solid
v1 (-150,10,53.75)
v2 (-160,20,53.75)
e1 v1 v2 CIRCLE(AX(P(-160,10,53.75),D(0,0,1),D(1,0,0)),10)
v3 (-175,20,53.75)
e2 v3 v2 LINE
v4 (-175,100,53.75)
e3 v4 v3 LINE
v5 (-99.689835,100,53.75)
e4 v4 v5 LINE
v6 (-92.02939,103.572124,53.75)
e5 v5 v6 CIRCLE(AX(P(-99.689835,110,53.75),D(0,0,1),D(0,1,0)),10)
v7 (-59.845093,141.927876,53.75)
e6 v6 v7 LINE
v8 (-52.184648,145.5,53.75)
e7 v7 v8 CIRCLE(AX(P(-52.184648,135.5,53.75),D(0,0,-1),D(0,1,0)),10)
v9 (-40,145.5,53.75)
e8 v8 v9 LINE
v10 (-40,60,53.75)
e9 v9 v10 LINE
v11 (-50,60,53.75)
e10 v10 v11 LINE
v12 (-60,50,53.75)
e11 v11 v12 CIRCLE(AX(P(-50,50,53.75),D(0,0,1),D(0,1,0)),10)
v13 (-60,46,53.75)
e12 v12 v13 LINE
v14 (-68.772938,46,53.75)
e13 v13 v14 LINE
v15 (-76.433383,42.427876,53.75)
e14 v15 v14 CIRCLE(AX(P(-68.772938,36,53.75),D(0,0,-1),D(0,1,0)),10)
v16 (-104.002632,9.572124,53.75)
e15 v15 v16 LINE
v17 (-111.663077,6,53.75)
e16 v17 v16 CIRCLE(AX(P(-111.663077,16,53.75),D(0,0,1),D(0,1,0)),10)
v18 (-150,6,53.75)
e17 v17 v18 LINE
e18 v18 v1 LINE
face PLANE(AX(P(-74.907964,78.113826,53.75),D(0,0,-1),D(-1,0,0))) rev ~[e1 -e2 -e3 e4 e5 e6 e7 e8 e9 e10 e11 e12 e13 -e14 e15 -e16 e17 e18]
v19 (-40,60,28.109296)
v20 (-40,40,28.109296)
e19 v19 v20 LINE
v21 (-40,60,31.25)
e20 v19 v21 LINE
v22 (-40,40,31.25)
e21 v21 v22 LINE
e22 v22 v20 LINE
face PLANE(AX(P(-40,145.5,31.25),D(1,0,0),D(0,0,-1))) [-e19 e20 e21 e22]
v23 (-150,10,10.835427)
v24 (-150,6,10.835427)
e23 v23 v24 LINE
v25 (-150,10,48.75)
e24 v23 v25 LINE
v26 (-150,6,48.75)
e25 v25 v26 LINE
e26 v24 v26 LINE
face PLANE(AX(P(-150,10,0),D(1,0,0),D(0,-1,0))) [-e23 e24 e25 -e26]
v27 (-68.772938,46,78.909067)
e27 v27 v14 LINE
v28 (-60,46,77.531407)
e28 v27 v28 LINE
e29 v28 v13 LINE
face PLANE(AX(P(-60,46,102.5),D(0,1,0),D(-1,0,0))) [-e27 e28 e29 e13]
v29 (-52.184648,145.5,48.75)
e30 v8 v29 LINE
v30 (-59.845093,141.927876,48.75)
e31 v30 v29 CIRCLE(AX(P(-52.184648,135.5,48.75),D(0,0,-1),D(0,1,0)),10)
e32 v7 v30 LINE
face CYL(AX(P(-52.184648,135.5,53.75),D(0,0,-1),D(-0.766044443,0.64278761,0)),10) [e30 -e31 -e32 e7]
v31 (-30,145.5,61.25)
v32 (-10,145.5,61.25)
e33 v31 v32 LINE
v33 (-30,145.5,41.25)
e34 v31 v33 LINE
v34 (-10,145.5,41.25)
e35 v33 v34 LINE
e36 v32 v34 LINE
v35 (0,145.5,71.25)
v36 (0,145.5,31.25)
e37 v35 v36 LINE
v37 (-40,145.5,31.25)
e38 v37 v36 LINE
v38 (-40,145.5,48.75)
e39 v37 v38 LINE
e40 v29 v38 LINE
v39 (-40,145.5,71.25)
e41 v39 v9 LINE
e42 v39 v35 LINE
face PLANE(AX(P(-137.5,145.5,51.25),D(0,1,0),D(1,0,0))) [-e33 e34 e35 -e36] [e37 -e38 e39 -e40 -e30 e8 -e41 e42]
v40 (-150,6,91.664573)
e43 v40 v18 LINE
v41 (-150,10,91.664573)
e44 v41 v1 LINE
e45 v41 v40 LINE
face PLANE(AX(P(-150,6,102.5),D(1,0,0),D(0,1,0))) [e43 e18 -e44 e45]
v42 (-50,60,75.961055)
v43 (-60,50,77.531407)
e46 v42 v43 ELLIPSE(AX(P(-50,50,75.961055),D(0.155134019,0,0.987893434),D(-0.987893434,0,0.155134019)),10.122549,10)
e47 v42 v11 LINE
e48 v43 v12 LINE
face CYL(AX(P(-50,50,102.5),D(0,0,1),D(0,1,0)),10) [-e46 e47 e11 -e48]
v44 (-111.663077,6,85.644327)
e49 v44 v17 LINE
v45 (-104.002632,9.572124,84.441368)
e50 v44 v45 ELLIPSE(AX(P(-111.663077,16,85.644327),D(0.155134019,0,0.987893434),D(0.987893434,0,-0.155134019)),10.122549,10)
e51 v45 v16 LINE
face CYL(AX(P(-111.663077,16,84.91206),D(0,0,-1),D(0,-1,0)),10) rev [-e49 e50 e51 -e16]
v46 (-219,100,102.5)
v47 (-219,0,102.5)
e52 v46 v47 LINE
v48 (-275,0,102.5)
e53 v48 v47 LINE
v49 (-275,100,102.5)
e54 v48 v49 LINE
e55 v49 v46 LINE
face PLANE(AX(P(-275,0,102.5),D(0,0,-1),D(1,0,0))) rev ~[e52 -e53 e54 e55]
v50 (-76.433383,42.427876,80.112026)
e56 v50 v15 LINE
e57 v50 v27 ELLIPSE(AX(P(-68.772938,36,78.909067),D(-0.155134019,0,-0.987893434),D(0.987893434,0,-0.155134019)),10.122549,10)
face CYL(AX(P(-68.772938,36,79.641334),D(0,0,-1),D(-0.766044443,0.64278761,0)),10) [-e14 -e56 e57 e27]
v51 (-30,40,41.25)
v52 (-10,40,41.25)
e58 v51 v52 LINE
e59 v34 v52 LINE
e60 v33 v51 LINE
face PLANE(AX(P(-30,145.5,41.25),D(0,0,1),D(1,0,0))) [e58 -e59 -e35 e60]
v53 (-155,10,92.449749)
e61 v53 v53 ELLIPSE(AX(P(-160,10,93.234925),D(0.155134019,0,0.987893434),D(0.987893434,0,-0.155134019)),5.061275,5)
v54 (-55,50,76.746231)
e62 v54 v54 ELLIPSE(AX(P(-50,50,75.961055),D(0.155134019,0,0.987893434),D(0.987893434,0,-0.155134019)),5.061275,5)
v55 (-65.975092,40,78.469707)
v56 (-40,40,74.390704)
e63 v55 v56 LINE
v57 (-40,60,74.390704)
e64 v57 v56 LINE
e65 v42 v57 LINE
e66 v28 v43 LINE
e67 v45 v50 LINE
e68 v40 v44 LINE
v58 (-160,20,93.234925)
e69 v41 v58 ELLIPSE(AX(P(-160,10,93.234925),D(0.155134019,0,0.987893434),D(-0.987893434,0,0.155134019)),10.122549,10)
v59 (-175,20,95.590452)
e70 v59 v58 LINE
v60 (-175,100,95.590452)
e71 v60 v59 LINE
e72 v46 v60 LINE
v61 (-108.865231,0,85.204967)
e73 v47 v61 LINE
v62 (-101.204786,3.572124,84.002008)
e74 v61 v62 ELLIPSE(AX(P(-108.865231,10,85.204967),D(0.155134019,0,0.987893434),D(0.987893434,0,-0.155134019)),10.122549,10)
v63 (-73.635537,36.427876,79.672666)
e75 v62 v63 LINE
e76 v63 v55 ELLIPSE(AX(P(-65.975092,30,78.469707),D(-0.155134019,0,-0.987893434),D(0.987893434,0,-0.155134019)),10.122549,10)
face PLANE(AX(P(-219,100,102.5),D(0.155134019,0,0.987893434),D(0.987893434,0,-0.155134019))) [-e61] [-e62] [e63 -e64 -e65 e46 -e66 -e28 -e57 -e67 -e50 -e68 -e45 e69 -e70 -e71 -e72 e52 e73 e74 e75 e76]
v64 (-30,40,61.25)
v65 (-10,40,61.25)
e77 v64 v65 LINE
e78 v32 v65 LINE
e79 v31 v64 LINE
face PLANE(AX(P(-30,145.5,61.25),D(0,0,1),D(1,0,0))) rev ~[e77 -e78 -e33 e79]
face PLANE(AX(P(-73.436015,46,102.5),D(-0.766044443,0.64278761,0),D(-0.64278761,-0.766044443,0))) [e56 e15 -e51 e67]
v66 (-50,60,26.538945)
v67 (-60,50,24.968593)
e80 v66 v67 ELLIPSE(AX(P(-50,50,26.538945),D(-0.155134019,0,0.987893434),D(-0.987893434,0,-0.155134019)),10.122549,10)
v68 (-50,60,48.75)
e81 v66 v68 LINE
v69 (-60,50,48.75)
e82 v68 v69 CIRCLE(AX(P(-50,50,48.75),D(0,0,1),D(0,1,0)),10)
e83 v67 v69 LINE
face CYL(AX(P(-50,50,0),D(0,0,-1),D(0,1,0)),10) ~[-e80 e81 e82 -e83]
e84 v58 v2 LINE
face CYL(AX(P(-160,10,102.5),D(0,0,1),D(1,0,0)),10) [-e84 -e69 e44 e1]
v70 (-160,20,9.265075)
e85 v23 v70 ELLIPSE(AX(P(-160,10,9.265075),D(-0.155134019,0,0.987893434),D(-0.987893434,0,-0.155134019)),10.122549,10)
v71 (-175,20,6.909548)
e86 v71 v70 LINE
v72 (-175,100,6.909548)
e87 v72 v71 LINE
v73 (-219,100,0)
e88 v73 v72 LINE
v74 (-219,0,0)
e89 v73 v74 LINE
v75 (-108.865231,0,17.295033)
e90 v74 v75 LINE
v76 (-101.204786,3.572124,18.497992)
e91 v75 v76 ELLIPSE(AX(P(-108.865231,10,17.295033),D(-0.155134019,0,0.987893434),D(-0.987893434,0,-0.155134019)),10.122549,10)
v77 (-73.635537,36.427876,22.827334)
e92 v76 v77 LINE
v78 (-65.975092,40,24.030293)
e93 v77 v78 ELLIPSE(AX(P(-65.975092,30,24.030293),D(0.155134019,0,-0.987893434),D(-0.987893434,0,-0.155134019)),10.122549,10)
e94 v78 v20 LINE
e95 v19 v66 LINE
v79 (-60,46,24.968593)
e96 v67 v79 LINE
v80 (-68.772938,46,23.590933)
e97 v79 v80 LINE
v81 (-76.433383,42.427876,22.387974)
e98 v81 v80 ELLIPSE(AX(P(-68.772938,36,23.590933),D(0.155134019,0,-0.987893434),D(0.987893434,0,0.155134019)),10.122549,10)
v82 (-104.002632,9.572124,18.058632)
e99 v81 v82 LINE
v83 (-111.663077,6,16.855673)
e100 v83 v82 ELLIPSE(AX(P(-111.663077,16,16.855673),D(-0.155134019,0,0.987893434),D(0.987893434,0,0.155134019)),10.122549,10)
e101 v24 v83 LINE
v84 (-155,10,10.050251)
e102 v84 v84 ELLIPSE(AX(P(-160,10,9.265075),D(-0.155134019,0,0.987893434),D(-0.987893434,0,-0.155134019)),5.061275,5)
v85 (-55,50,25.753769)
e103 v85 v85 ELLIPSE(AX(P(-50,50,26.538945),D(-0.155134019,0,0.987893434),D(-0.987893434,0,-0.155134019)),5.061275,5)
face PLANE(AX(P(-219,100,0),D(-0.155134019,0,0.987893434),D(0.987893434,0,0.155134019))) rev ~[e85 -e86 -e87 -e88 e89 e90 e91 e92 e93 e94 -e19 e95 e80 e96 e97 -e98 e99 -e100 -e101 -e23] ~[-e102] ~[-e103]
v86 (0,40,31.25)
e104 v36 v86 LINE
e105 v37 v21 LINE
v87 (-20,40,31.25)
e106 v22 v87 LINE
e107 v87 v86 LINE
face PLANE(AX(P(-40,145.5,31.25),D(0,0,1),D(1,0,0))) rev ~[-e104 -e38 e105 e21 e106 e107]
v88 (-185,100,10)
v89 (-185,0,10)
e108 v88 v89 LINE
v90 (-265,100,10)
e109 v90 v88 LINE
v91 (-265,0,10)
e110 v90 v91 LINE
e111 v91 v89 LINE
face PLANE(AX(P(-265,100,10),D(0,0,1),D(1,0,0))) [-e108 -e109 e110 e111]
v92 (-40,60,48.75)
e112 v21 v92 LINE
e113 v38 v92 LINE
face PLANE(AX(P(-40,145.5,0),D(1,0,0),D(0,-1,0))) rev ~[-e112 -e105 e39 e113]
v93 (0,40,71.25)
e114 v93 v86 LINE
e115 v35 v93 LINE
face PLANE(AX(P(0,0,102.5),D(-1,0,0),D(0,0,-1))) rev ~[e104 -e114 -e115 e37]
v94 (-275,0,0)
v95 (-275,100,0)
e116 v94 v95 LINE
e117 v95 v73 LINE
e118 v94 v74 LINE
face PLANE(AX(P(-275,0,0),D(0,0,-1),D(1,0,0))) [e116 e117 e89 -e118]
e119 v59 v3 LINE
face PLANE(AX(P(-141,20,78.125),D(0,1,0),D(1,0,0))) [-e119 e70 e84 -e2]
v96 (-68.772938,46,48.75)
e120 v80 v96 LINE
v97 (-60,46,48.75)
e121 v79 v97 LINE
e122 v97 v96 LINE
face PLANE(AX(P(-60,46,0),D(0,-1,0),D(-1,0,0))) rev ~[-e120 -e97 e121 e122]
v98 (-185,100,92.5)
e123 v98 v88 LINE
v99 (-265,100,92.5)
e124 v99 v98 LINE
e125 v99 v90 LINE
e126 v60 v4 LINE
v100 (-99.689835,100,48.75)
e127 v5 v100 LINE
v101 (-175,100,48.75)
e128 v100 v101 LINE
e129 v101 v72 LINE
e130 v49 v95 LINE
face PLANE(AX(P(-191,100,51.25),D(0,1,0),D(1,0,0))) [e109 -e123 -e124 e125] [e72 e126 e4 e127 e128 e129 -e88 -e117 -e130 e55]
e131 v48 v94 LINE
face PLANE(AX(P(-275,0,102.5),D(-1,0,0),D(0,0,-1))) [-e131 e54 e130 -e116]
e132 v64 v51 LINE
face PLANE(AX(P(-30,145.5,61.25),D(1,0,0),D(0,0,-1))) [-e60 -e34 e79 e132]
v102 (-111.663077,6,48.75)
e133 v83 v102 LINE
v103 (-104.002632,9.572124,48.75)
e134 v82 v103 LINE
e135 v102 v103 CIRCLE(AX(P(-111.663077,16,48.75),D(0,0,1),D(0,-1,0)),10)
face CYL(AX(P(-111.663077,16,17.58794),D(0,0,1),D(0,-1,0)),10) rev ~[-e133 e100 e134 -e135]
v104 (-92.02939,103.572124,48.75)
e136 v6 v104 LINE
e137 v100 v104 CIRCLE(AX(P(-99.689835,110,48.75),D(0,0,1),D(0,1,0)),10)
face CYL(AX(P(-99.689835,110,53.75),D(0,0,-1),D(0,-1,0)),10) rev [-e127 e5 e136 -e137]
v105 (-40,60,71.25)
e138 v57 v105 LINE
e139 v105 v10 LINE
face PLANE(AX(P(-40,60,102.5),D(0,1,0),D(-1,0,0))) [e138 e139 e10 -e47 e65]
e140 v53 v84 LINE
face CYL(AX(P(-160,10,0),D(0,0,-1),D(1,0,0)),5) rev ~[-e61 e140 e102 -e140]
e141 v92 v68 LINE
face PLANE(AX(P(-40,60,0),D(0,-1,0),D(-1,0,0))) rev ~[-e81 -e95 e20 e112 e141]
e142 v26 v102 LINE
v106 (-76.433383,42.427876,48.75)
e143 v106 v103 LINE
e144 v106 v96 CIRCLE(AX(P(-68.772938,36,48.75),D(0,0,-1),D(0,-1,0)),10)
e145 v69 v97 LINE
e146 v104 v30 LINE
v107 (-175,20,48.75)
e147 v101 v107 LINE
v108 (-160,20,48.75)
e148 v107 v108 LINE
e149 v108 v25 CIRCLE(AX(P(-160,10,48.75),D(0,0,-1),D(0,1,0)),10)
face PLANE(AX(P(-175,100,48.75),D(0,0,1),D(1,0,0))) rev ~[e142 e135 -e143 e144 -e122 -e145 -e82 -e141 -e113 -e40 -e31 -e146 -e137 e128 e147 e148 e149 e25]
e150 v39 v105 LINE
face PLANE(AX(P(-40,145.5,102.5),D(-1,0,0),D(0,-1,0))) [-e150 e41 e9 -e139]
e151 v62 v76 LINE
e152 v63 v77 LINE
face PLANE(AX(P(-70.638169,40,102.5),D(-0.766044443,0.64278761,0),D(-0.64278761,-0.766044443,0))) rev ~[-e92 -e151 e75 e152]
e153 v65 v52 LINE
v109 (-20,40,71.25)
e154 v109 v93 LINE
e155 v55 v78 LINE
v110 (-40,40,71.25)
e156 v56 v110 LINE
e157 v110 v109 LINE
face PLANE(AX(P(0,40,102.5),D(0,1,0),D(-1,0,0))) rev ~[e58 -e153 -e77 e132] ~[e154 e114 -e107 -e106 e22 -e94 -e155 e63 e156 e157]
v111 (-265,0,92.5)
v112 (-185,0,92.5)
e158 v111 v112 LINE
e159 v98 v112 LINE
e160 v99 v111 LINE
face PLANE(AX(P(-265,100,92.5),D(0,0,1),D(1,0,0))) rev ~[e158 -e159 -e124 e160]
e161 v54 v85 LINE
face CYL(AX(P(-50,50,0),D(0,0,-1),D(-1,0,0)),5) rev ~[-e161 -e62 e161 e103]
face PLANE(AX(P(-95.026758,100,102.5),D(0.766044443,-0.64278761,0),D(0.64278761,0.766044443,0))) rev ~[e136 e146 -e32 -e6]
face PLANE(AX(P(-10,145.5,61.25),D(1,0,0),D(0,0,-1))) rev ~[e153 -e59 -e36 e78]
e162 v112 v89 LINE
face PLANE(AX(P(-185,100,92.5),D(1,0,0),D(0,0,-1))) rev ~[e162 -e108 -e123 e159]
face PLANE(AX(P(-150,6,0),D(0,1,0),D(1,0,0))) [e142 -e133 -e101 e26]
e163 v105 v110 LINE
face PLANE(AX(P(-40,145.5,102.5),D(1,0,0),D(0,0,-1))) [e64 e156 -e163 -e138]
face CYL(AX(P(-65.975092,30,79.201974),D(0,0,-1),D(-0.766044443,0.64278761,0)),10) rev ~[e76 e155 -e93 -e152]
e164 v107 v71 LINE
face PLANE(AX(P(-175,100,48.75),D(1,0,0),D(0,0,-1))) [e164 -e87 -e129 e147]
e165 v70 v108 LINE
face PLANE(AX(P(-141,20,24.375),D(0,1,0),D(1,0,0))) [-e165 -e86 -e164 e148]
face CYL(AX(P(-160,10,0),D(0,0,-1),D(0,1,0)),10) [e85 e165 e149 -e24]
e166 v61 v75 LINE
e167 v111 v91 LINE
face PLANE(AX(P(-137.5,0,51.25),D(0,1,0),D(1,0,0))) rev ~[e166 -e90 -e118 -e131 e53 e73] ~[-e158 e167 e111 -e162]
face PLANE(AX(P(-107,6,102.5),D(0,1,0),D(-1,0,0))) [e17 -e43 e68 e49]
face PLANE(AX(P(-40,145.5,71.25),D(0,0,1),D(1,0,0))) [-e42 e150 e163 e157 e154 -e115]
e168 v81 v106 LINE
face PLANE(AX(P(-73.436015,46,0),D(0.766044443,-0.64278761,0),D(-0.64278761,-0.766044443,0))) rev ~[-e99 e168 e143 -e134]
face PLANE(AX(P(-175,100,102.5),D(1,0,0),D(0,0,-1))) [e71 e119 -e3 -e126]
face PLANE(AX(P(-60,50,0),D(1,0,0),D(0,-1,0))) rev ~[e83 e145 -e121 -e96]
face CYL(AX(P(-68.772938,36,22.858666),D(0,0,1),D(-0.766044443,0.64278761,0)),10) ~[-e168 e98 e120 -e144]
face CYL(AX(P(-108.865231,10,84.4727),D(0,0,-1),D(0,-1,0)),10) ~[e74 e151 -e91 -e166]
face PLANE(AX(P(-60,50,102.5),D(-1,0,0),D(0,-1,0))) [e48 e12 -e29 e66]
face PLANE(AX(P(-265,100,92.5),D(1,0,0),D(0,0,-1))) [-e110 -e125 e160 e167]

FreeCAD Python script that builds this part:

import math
import FreeCAD as App
import Part
import Sketcher
Q = App.Units.Quantity


def edges_at(feature, points):
    """Names of the edges that pass closest to the given points."""
    edges = feature.Shape.Edges
    near = lambda p: min(range(len(edges)), key=lambda i: edges[i].distToShape(Part.Vertex(*p))[0])
    return sorted({f"Edge{near(p) + 1}" for p in points})

doc = App.newDocument("Part")
body = doc.addObject("PartDesign::Body", "Body")

# Sketch on XZ plane
sketch1 = doc.addObject("Sketcher::SketchObject", "Sketch")
body.addObject(sketch1)
sketch1.AttachmentSupport = (doc.XZ_Plane, [""])
sketch1.MapMode = "FlatFace"
sketch1.addGeometry([
    Part.LineSegment(App.Vector(-275, 0, 0), App.Vector(-275, 102, 0)),
    Part.LineSegment(App.Vector(-275, 102, 0), App.Vector(0, 102, 0)),
    Part.LineSegment(App.Vector(0, 102, 0), App.Vector(0, 0, 0)),
    Part.LineSegment(App.Vector(0, 0, 0), App.Vector(-275, 0, 0)),
], False)
sketch1.addConstraint([
    Sketcher.Constraint("Coincident", 0, 2, 1, 1),
    Sketcher.Constraint("Coincident", 1, 2, 2, 1),
    Sketcher.Constraint("Coincident", 2, 2, 3, 1),
    Sketcher.Constraint("Coincident", 3, 2, 0, 1),
    Sketcher.Constraint("Vertical", 0),
    Sketcher.Constraint("Horizontal", 1),
    Sketcher.Constraint("Vertical", 2),
    Sketcher.Constraint("Horizontal", 3),
    Sketcher.Constraint("Coincident", 2, 2, -1, 1),
    Sketcher.Constraint("DistanceX", 1, 1, 1, 2, 275.0),
    Sketcher.Constraint("DistanceY", 0, 1, 0, 2, 102.5),
])
pad1 = doc.addObject("PartDesign::Pad", "Pad")
body.addObject(pad1)
pad1.Profile = sketch1
pad1.Length = 145.5
pad1.Reversed = True

# Sketch on XZ plane
sketch2 = doc.addObject("Sketcher::SketchObject", "Sketch001")
body.addObject(sketch2)
sketch2.AttachmentSupport = (doc.XZ_Plane, [""])
sketch2.MapMode = "FlatFace"
sketch2.AttachmentOffset = App.Placement(App.Vector(0, 0, -145.5), App.Rotation())
sketch2.addGeometry([
    Part.LineSegment(App.Vector(-275, 0, 0), App.Vector(-275, 102, 0)),
    Part.LineSegment(App.Vector(-275, 102, 0), App.Vector(-107, 102, 0)),
    Part.LineSegment(App.Vector(-107, 102, 0), App.Vector(-107, 0, 0)),
    Part.LineSegment(App.Vector(-107, 0, 0), App.Vector(-275, 0, 0)),
], False)
sketch2.addConstraint([
    Sketcher.Constraint("Coincident", 0, 2, 1, 1),
    Sketcher.Constraint("Coincident", 1, 2, 2, 1),
    Sketcher.Constraint("Coincident", 2, 2, 3, 1),
    Sketcher.Constraint("Coincident", 3, 2, 0, 1),
    Sketcher.Constraint("Vertical", 0),
    Sketcher.Constraint("Horizontal", 1),
    Sketcher.Constraint("Vertical", 2),
    Sketcher.Constraint("Horizontal", 3),
    Sketcher.Constraint("PointOnObject", 2, 2, -1),
    Sketcher.Constraint("DistanceX", 1, 1, 1, 2, 168.0),
    Sketcher.Constraint("DistanceY", 0, 1, 0, 2, 102.5),
    Sketcher.Constraint("DistanceX", 0, 2, -1, 1, 275.0),
])
pocket1 = doc.addObject("PartDesign::Pocket", "Pocket")
body.addObject(pocket1)
pocket1.Profile = sketch2
pocket1.Length = 45.5
pocket1.Reversed = True

# Sketch on XZ plane
sketch3 = doc.addObject("Sketcher::SketchObject", "Sketch002")
body.addObject(sketch3)
sketch3.AttachmentSupport = (doc.XZ_Plane, [""])
sketch3.MapMode = "FlatFace"
sketch3.AttachmentOffset = App.Placement(App.Vector(0, 0, -100), App.Rotation())
sketch3.addGeometry([
    Part.LineSegment(App.Vector(-175, 0, 0), App.Vector(-175, 49, 0)),  # 0
    Part.LineSegment(App.Vector(-175, 49, 0), App.Vector(-107, 49, 0)),  # 1
    Part.LineSegment(App.Vector(-107, 49, 0), App.Vector(-107, 0, 0)),  # 2
    Part.LineSegment(App.Vector(-107, 0, 0), App.Vector(-175, 0, 0)),  # 3
    Part.LineSegment(App.Vector(-175, 54, 0), App.Vector(-175, 102, 0)),  # 4
    Part.LineSegment(App.Vector(-175, 102, 0), App.Vector(-107, 102, 0)),  # 5
    Part.LineSegment(App.Vector(-107, 102, 0), App.Vector(-107, 54, 0)),  # 6
    Part.LineSegment(App.Vector(-107, 54, 0), App.Vector(-175, 54, 0)),  # 7
], False)
sketch3.addConstraint([
    Sketcher.Constraint("Coincident", 0, 2, 1, 1),
    Sketcher.Constraint("Coincident", 1, 2, 2, 1),
    Sketcher.Constraint("Coincident", 2, 2, 3, 1),
    Sketcher.Constraint("Coincident", 3, 2, 0, 1),
    Sketcher.Constraint("Coincident", 4, 2, 5, 1),
    Sketcher.Constraint("Coincident", 5, 2, 6, 1),
    Sketcher.Constraint("Coincident", 6, 2, 7, 1),
    Sketcher.Constraint("Coincident", 7, 2, 4, 1),
    Sketcher.Constraint("Vertical", 0),
    Sketcher.Constraint("Horizontal", 1),
    Sketcher.Constraint("Vertical", 2),
    Sketcher.Constraint("Horizontal", 3),
    Sketcher.Constraint("Vertical", 4),
    Sketcher.Constraint("Horizontal", 5),
    Sketcher.Constraint("Vertical", 6),
    Sketcher.Constraint("Horizontal", 7),
    Sketcher.Constraint("PointOnObject", 2, 2, -1),
    Sketcher.Constraint("Vertical", 3, 2, 4, 2),
    Sketcher.Constraint("Vertical", 2, 2, 5, 2),
    Sketcher.Constraint("Equal", 2, 4),
    Sketcher.Constraint("DistanceX", 1, 1, 1, 2, 68.0),
    Sketcher.Constraint("DistanceX", 0, 2, -1, 1, 175.0),
    Sketcher.Constraint("DistanceY", 1, 2, 6, 2, 5.0),
    Sketcher.Constraint("DistanceY", 0, 1, 0, 2, 48.75),
])
pocket2 = doc.addObject("PartDesign::Pocket", "Pocket001")
body.addObject(pocket2)
pocket2.Profile = sketch3
pocket2.Length = 80
pocket2.Reversed = True

# Sketch on XZ plane
sketch4 = doc.addObject("Sketcher::SketchObject", "Sketch003")
body.addObject(sketch4)
sketch4.AttachmentSupport = (doc.XZ_Plane, [""])
sketch4.MapMode = "FlatFace"
sketch4.AttachmentOffset = App.Placement(App.Vector(0, 0, -100), App.Rotation())
sketch4.addGeometry([
    Part.LineSegment(App.Vector(-265, 10, 0), App.Vector(-265, 92, 0)),
    Part.LineSegment(App.Vector(-265, 92, 0), App.Vector(-185, 92, 0)),
    Part.LineSegment(App.Vector(-185, 92, 0), App.Vector(-185, 10, 0)),
    Part.LineSegment(App.Vector(-185, 10, 0), App.Vector(-265, 10, 0)),
], False)
sketch4.addConstraint([
    Sketcher.Constraint("Coincident", 0, 2, 1, 1),
    Sketcher.Constraint("Coincident", 1, 2, 2, 1),
    Sketcher.Constraint("Coincident", 2, 2, 3, 1),
    Sketcher.Constraint("Coincident", 3, 2, 0, 1),
    Sketcher.Constraint("Vertical", 0),
    Sketcher.Constraint("Horizontal", 1),
    Sketcher.Constraint("Vertical", 2),
    Sketcher.Constraint("Horizontal", 3),
    Sketcher.Constraint("DistanceX", 1, 1, 1, 2, 80.0),
    Sketcher.Constraint("DistanceY", 0, 1, 0, 2, 82.5),
    Sketcher.Constraint("DistanceX", 0, 2, -1, 1, 265.0),
    Sketcher.Constraint("DistanceY", -1, 1, 2, 2, 10.0),
])
pocket3 = doc.addObject("PartDesign::Pocket", "Pocket002")
body.addObject(pocket3)
pocket3.Profile = sketch4
pocket3.Type = "ThroughAll"
pocket3.Reversed = True

# Sketch on XY plane
sketch5 = doc.addObject("Sketcher::SketchObject", "Sketch004")
body.addObject(sketch5)
sketch5.AttachmentSupport = (doc.XY_Plane, [""])
sketch5.MapMode = "FlatFace"
sketch5.AttachmentOffset = App.Placement(App.Vector(0, 0, 102.5), App.Rotation())
sketch5.addGeometry([
    Part.Circle(App.Vector(-160, 10, 0), App.Vector(0, 0, 1), 5),  # 0
    Part.LineSegment(App.Vector(-150, 6, 0), App.Vector(-107, 6, 0)),  # 1
    Part.LineSegment(App.Vector(-107, 6, 0), App.Vector(-107, 100, 0)),  # 2
    Part.LineSegment(App.Vector(-107, 100, 0), App.Vector(-175, 100, 0)),  # 3
    Part.LineSegment(App.Vector(-175, 100, 0), App.Vector(-175, 20, 0)),  # 4
    Part.LineSegment(App.Vector(-175, 20, 0), App.Vector(-160, 20, 0)),  # 5
    Part.ArcOfCircle(Part.Circle(App.Vector(-160, 10, 0), App.Vector(0, 0, 1), 10), math.radians(0), math.radians(90)),  # 6
    Part.LineSegment(App.Vector(-150, 10, 0), App.Vector(-150, 6, 0)),  # 7
], False)
sketch5.addConstraint([
    Sketcher.Constraint("Coincident", 1, 2, 2, 1),
    Sketcher.Constraint("Coincident", 2, 2, 3, 1),
    Sketcher.Constraint("Coincident", 3, 2, 4, 1),
    Sketcher.Constraint("Coincident", 4, 2, 5, 1),
    Sketcher.Constraint("Tangent", 5, 2, 6, 2),
    Sketcher.Constraint("Tangent", 6, 1, 7, 1),
    Sketcher.Constraint("Coincident", 7, 2, 1, 1),
    Sketcher.Constraint("Horizontal", 1),
    Sketcher.Constraint("Vertical", 2),
    Sketcher.Constraint("Horizontal", 3),
    Sketcher.Constraint("Vertical", 4),
    Sketcher.Constraint("Horizontal", 5),
    Sketcher.Constraint("Vertical", 7),
    Sketcher.Constraint("Coincident", 6, 3, 0, 3),
    Sketcher.Constraint("Diameter", 0, 10.0),
    Sketcher.Constraint("Radius", 6, 10.0),
    Sketcher.Constraint("DistanceX", 1, 1, 1, 2, 43.0),
    Sketcher.Constraint("DistanceX", 3, 2, 3, 1, 68.0),
    Sketcher.Constraint("DistanceY", 2, 1, 2, 2, 94.0),
    Sketcher.Constraint("DistanceY", 4, 2, 4, 1, 80.0),
    Sketcher.Constraint("DistanceX", 0, 3, -1, 1, 160.0),
    Sketcher.Constraint("DistanceY", -1, 1, 0, 3, 10.0),
])
pocket4 = doc.addObject("PartDesign::Pocket", "Pocket003")
body.addObject(pocket4)
pocket4.Profile = sketch5
pocket4.Length = 48.75

# Sketch on XY plane
sketch6 = doc.addObject("Sketcher::SketchObject", "Sketch005")
body.addObject(sketch6)
sketch6.AttachmentSupport = (doc.XY_Plane, [""])
sketch6.MapMode = "FlatFace"
sketch6.addGeometry([
    Part.Circle(App.Vector(-160, 10, 0), App.Vector(0, 0, 1), 5),  # 0
    Part.LineSegment(App.Vector(-175, 100, 0), App.Vector(-107, 100, 0)),  # 1
    Part.LineSegment(App.Vector(-107, 100, 0), App.Vector(-107, 6, 0)),  # 2
    Part.LineSegment(App.Vector(-107, 6, 0), App.Vector(-150, 6, 0)),  # 3
    Part.LineSegment(App.Vector(-150, 6, 0), App.Vector(-150, 10, 0)),  # 4
    Part.ArcOfCircle(Part.Circle(App.Vector(-160, 10, 0), App.Vector(0, 0, 1), 10), math.radians(0), math.radians(90)),  # 5
    Part.LineSegment(App.Vector(-160, 20, 0), App.Vector(-175, 20, 0)),  # 6
    Part.LineSegment(App.Vector(-175, 20, 0), App.Vector(-175, 100, 0)),  # 7
], False)
sketch6.addConstraint([
    Sketcher.Constraint("Coincident", 1, 2, 2, 1),
    Sketcher.Constraint("Coincident", 2, 2, 3, 1),
    Sketcher.Constraint("Coincident", 3, 2, 4, 1),
    Sketcher.Constraint("Tangent", 4, 2, 5, 1),
    Sketcher.Constraint("Tangent", 5, 2, 6, 1),
    Sketcher.Constraint("Coincident", 6, 2, 7, 1),
    Sketcher.Constraint("Coincident", 7, 2, 1, 1),
    Sketcher.Constraint("Horizontal", 1),
    Sketcher.Constraint("Vertical", 2),
    Sketcher.Constraint("Horizontal", 3),
    Sketcher.Constraint("Vertical", 4),
    Sketcher.Constraint("Horizontal", 6),
    Sketcher.Constraint("Vertical", 7),
    Sketcher.Constraint("Coincident", 5, 3, 0, 3),
    Sketcher.Constraint("Diameter", 0, 10.0),
    Sketcher.Constraint("Radius", 5, 10.0),
    Sketcher.Constraint("DistanceX", 1, 1, 1, 2, 68.0),
    Sketcher.Constraint("DistanceX", 3, 2, 3, 1, 43.0),
    Sketcher.Constraint("DistanceY", 2, 2, 2, 1, 94.0),
    Sketcher.Constraint("DistanceY", 4, 1, 4, 2, 4.0),
    Sketcher.Constraint("DistanceX", 0, 3, -1, 1, 160.0),
    Sketcher.Constraint("DistanceY", -1, 1, 0, 3, 10.0),
])
pocket5 = doc.addObject("PartDesign::Pocket", "Pocket004")
body.addObject(pocket5)
pocket5.Profile = sketch6
pocket5.Length = 48.75
pocket5.Reversed = True

# Sketch on XY plane
sketch7 = doc.addObject("Sketcher::SketchObject", "Sketch006")
body.addObject(sketch7)
sketch7.AttachmentSupport = (doc.XY_Plane, [""])
sketch7.MapMode = "FlatFace"
sketch7.AttachmentOffset = App.Placement(App.Vector(0, 0, 102.5), App.Rotation())
sketch7.addGeometry(Part.Circle(App.Vector(-160, 10, 0), App.Vector(0, 0, 1), 5), False)
sketch7.addConstraint([
    Sketcher.Constraint("Diameter", 0, 10.0),
    Sketcher.Constraint("DistanceX", 0, 3, -1, 1, 160.0),
    Sketcher.Constraint("DistanceY", -1, 1, 0, 3, 10.0),
])
pocket6 = doc.addObject("PartDesign::Pocket", "Pocket005")
body.addObject(pocket6)
pocket6.Profile = sketch7
pocket6.Type = "ThroughAll"

# Sketch on XY plane
sketch8 = doc.addObject("Sketcher::SketchObject", "Sketch007")
body.addObject(sketch8)
sketch8.AttachmentSupport = (doc.XY_Plane, [""])
sketch8.MapMode = "FlatFace"
sketch8.AttachmentOffset = App.Placement(App.Vector(0, 0, 102.5), App.Rotation())
sketch8.addGeometry([
    Part.LineSegment(App.Vector(0, 40, 0), App.Vector(-71, 40, 0)),
    Part.LineSegment(App.Vector(-71, 40, 0), App.Vector(-104, 0, 0)),
    Part.LineSegment(App.Vector(-104, 0, 0), App.Vector(0, 0, 0)),
    Part.LineSegment(App.Vector(0, 0, 0), App.Vector(0, 40, 0)),
], False)
sketch8.addConstraint([
    Sketcher.Constraint("Coincident", 0, 2, 1, 1),
    Sketcher.Constraint("Coincident", 1, 2, 2, 1),
    Sketcher.Constraint("Coincident", 2, 2, 3, 1),
    Sketcher.Constraint("Coincident", 3, 2, 0, 1),
    Sketcher.Constraint("Horizontal", 0),
    Sketcher.Constraint("Horizontal", 2),
    Sketcher.Constraint("Vertical", 3),
    Sketcher.Constraint("Coincident", 2, 2, -1, 1),
    Sketcher.Constraint("DistanceY", 3, 1, 3, 2, 40.0),
    Sketcher.Constraint("Angle", 1, Q("-130 deg")),
    Sketcher.Constraint("DistanceX", 0, 2, 0, 1, 70.638169),
])
pocket7 = doc.addObject("PartDesign::Pocket", "Pocket006")
body.addObject(pocket7)
pocket7.Profile = sketch8
pocket7.Type = "ThroughAll"

# Sketch on XY plane
sketch9 = doc.addObject("Sketcher::SketchObject", "Sketch008")
body.addObject(sketch9)
sketch9.AttachmentSupport = (doc.XY_Plane, [""])
sketch9.MapMode = "FlatFace"
sketch9.AttachmentOffset = App.Placement(App.Vector(0, 0, 102.5), App.Rotation())
sketch9.addGeometry([
    Part.LineSegment(App.Vector(-107, 146, 0), App.Vector(-107, 100, 0)),
    Part.LineSegment(App.Vector(-107, 100, 0), App.Vector(-95, 100, 0)),
    Part.LineSegment(App.Vector(-95, 100, 0), App.Vector(-57, 146, 0)),
    Part.LineSegment(App.Vector(-57, 146, 0), App.Vector(-107, 146, 0)),
], False)
sketch9.addConstraint([
    Sketcher.Constraint("Coincident", 0, 2, 1, 1),
    Sketcher.Constraint("Coincident", 1, 2, 2, 1),
    Sketcher.Constraint("Coincident", 2, 2, 3, 1),
    Sketcher.Constraint("Coincident", 3, 2, 0, 1),
    Sketcher.Constraint("Vertical", 0),
    Sketcher.Constraint("Horizontal", 1),
    Sketcher.Constraint("Horizontal", 3),
    Sketcher.Constraint("Angle", 2, Q("50 deg")),
    Sketcher.Constraint("DistanceY", 0, 2, 0, 1, 45.5),
    Sketcher.Constraint("DistanceX", 0, 2, -1, 1, 107.0),
    Sketcher.Constraint("DistanceY", -1, 1, 0, 2, 100.0),
    Sketcher.Constraint("DistanceX", 1, 1, 1, 2, 11.973242),
])
pocket8 = doc.addObject("PartDesign::Pocket", "Pocket007")
body.addObject(pocket8)
pocket8.Profile = sketch9
pocket8.Type = "ThroughAll"

# Sketch on XY plane
sketch10 = doc.addObject("Sketcher::SketchObject", "Sketch009")
body.addObject(sketch10)
sketch10.AttachmentSupport = (doc.XY_Plane, [""])
sketch10.MapMode = "FlatFace"
sketch10.AttachmentOffset = App.Placement(App.Vector(0, 0, 102.5), App.Rotation())
sketch10.addGeometry([
    Part.LineSegment(App.Vector(-40, 60, 0), App.Vector(-40, 145.5, 0)),  # 0
    Part.LineSegment(App.Vector(-40, 145.5, 0), App.Vector(-56.8, 145.5, 0)),  # 1
    Part.LineSegment(App.Vector(-56.8, 145.5, 0), App.Vector(-95, 100, 0)),  # 2
    Part.LineSegment(App.Vector(-95, 100, 0), App.Vector(-107, 100, 0)),  # 3
    Part.LineSegment(App.Vector(-107, 100, 0), App.Vector(-107, 6, 0)),  # 4
    Part.LineSegment(App.Vector(-107, 6, 0), App.Vector(-73.4, 46, 0)),  # 5
    Part.LineSegment(App.Vector(-73.4, 46, 0), App.Vector(-60, 46, 0)),  # 6
    Part.LineSegment(App.Vector(-60, 46, 0), App.Vector(-60, 50, 0)),  # 7
    Part.ArcOfCircle(Part.Circle(App.Vector(-50, 50, 0), App.Vector(0, 0, 1), 10), math.radians(90), math.radians(180)),  # 8
    Part.LineSegment(App.Vector(-50, 60, 0), App.Vector(-40, 60, 0)),  # 9
], False)
sketch10.addConstraint([
    Sketcher.Constraint("Coincident", 0, 2, 1, 1),
    Sketcher.Constraint("Coincident", 1, 2, 2, 1),
    Sketcher.Constraint("Coincident", 2, 2, 3, 1),
    Sketcher.Constraint("Coincident", 3, 2, 4, 1),
    Sketcher.Constraint("Coincident", 4, 2, 5, 1),
    Sketcher.Constraint("Coincident", 5, 2, 6, 1),
    Sketcher.Constraint("Coincident", 6, 2, 7, 1),
    Sketcher.Constraint("Tangent", 7, 2, 8, 2),
    Sketcher.Constraint("Tangent", 8, 1, 9, 1),
    Sketcher.Constraint("Coincident", 9, 2, 0, 1),
    Sketcher.Constraint("Vertical", 0),
    Sketcher.Constraint("Horizontal", 1),
    Sketcher.Constraint("Horizontal", 3),
    Sketcher.Constraint("Vertical", 4),
    Sketcher.Constraint("Horizontal", 6),
    Sketcher.Constraint("Vertical", 7),
    Sketcher.Constraint("Horizontal", 9),
    Sketcher.Constraint("Parallel", 2, 5),
    Sketcher.Constraint("Radius", 8, 10.0),
    Sketcher.Constraint("DistanceX", 9, 1, 9, 2, 10.0),
    Sketcher.Constraint("DistanceY", 4, 2, 4, 1, 94.0),
    Sketcher.Constraint("DistanceY", 7, 1, 7, 2, 4.0),
    Sketcher.Constraint("Angle", 2, Q("-130 deg")),
    Sketcher.Constraint("DistanceY", 0, 1, 0, 2, 85.5),
    Sketcher.Constraint("DistanceX", 8, 3, -1, 1, 50.0),
    Sketcher.Constraint("DistanceY", -1, 1, 8, 3, 50.0),
    Sketcher.Constraint("DistanceY", -1, 1, 2, 2, 100.0),
    Sketcher.Constraint("DistanceX", 3, 2, -1, 1, 107.0),
    Sketcher.Constraint("DistanceX", 3, 2, 3, 1, 11.973242),
])
pocket9 = doc.addObject("PartDesign::Pocket", "Pocket008")
body.addObject(pocket9)
pocket9.Profile = sketch10
pocket9.Length = 48.75

# Sketch on XY plane
sketch11 = doc.addObject("Sketcher::SketchObject", "Sketch010")
body.addObject(sketch11)
sketch11.AttachmentSupport = (doc.XY_Plane, [""])
sketch11.MapMode = "FlatFace"
sketch11.addGeometry([
    Part.Circle(App.Vector(-50, 50, 0), App.Vector(0, 0, 1), 5),  # 0
    Part.LineSegment(App.Vector(-40, 145.5, 0), App.Vector(-40, 60, 0)),  # 1
    Part.LineSegment(App.Vector(-40, 60, 0), App.Vector(-50, 60, 0)),  # 2
    Part.ArcOfCircle(Part.Circle(App.Vector(-50, 50, 0), App.Vector(0, 0, 1), 10), math.radians(90), math.radians(180)),  # 3
    Part.LineSegment(App.Vector(-60, 50, 0), App.Vector(-60, 46, 0)),  # 4
    Part.LineSegment(App.Vector(-60, 46, 0), App.Vector(-73.4, 46, 0)),  # 5
    Part.LineSegment(App.Vector(-73.4, 46, 0), App.Vector(-107, 6, 0)),  # 6
    Part.LineSegment(App.Vector(-107, 6, 0), App.Vector(-107, 100, 0)),  # 7
    Part.LineSegment(App.Vector(-107, 100, 0), App.Vector(-95, 100, 0)),  # 8
    Part.LineSegment(App.Vector(-95, 100, 0), App.Vector(-56.8, 145.5, 0)),  # 9
    Part.LineSegment(App.Vector(-56.8, 145.5, 0), App.Vector(-40, 145.5, 0)),  # 10
], False)
sketch11.addConstraint([
    Sketcher.Constraint("Coincident", 1, 2, 2, 1),
    Sketcher.Constraint("Tangent", 2, 2, 3, 1),
    Sketcher.Constraint("Tangent", 3, 2, 4, 1),
    Sketcher.Constraint("Coincident", 4, 2, 5, 1),
    Sketcher.Constraint("Coincident", 5, 2, 6, 1),
    Sketcher.Constraint("Coincident", 6, 2, 7, 1),
    Sketcher.Constraint("Coincident", 7, 2, 8, 1),
    Sketcher.Constraint("Coincident", 8, 2, 9, 1),
    Sketcher.Constraint("Coincident", 9, 2, 10, 1),
    Sketcher.Constraint("Coincident", 10, 2, 1, 1),
    Sketcher.Constraint("Vertical", 1),
    Sketcher.Constraint("Horizontal", 2),
    Sketcher.Constraint("Vertical", 4),
    Sketcher.Constraint("Horizontal", 5),
    Sketcher.Constraint("Vertical", 7),
    Sketcher.Constraint("Horizontal", 8),
    Sketcher.Constraint("Horizontal", 10),
    Sketcher.Constraint("Coincident", 3, 3, 0, 3),
    Sketcher.Constraint("Parallel", 6, 9),
    Sketcher.Constraint("Diameter", 0, 10.0),
    Sketcher.Constraint("Radius", 3, 10.0),
    Sketcher.Constraint("DistanceX", 2, 2, 2, 1, 10.0),
    Sketcher.Constraint("DistanceY", 4, 2, 4, 1, 4.0),
    Sketcher.Constraint("DistanceY", 7, 1, 7, 2, 94.0),
    Sketcher.Constraint("Angle", 6, Q("-130 deg")),
    Sketcher.Constraint("DistanceY", 1, 2, 1, 1, 85.5),
    Sketcher.Constraint("DistanceX", 0, 3, -1, 1, 50.0),
    Sketcher.Constraint("DistanceY", -1, 1, 0, 3, 50.0),
    Sketcher.Constraint("DistanceX", 6, 2, -1, 1, 107.0),
    Sketcher.Constraint("DistanceY", -1, 1, 6, 2, 6.0),
    Sketcher.Constraint("DistanceX", 8, 1, 8, 2, 11.973242),
])
pocket10 = doc.addObject("PartDesign::Pocket", "Pocket009")
body.addObject(pocket10)
pocket10.Profile = sketch11
pocket10.Length = 48.75
pocket10.Reversed = True

# Sketch on XZ plane
sketch12 = doc.addObject("Sketcher::SketchObject", "Sketch011")
body.addObject(sketch12)
sketch12.AttachmentSupport = (doc.XZ_Plane, [""])
sketch12.MapMode = "FlatFace"
sketch12.AttachmentOffset = App.Placement(App.Vector(0, 0, -145.5), App.Rotation())
sketch12.addGeometry([
    Part.LineSegment(App.Vector(-40, 71, 0), App.Vector(-40, 102, 0)),  # 0
    Part.LineSegment(App.Vector(-40, 102, 0), App.Vector(0, 102, 0)),  # 1
    Part.LineSegment(App.Vector(0, 102, 0), App.Vector(0, 71, 0)),  # 2
    Part.LineSegment(App.Vector(0, 71, 0), App.Vector(-40, 71, 0)),  # 3
    Part.LineSegment(App.Vector(-40, 0, 0), App.Vector(-40, 31, 0)),  # 4
    Part.LineSegment(App.Vector(-40, 31, 0), App.Vector(0, 31, 0)),  # 5
    Part.LineSegment(App.Vector(0, 31, 0), App.Vector(0, 0, 0)),  # 6
    Part.LineSegment(App.Vector(0, 0, 0), App.Vector(-40, 0, 0)),  # 7
], False)
sketch12.addConstraint([
    Sketcher.Constraint("Coincident", 0, 2, 1, 1),
    Sketcher.Constraint("Coincident", 1, 2, 2, 1),
    Sketcher.Constraint("Coincident", 2, 2, 3, 1),
    Sketcher.Constraint("Coincident", 3, 2, 0, 1),
    Sketcher.Constraint("Coincident", 4, 2, 5, 1),
    Sketcher.Constraint("Coincident", 5, 2, 6, 1),
    Sketcher.Constraint("Coincident", 6, 2, 7, 1),
    Sketcher.Constraint("Coincident", 7, 2, 4, 1),
    Sketcher.Constraint("Vertical", 0),
    Sketcher.Constraint("Horizontal", 1),
    Sketcher.Constraint("Vertical", 2),
    Sketcher.Constraint("Horizontal", 3),
    Sketcher.Constraint("Vertical", 4),
    Sketcher.Constraint("Horizontal", 5),
    Sketcher.Constraint("Vertical", 6),
    Sketcher.Constraint("Horizontal", 7),
    Sketcher.Constraint("Coincident", 6, 2, -1, 1),
    Sketcher.Constraint("PointOnObject", 1, 2, -2),
    Sketcher.Constraint("Vertical", 3, 2, 4, 2),
    Sketcher.Constraint("Equal", 2, 4),
    Sketcher.Constraint("DistanceX", 1, 1, 1, 2, 40.0),
    Sketcher.Constraint("DistanceY", 4, 2, 3, 2, 40.0),
    Sketcher.Constraint("DistanceY", 0, 1, 0, 2, 31.25),
])
pocket11 = doc.addObject("PartDesign::Pocket", "Pocket010")
body.addObject(pocket11)
pocket11.Profile = sketch12
pocket11.Type = "ThroughAll"
pocket11.Reversed = True

# Sketch on XZ plane
sketch13 = doc.addObject("Sketcher::SketchObject", "Sketch012")
body.addObject(sketch13)
sketch13.AttachmentSupport = (doc.XZ_Plane, [""])
sketch13.MapMode = "FlatFace"
sketch13.AttachmentOffset = App.Placement(App.Vector(0, 0, -145.5), App.Rotation())
sketch13.addGeometry([
    Part.LineSegment(App.Vector(-30, 41, 0), App.Vector(-30, 61, 0)),
    Part.LineSegment(App.Vector(-30, 61, 0), App.Vector(-10, 61, 0)),
    Part.LineSegment(App.Vector(-10, 61, 0), App.Vector(-10, 41, 0)),
    Part.LineSegment(App.Vector(-10, 41, 0), App.Vector(-30, 41, 0)),
], False)
sketch13.addConstraint([
    Sketcher.Constraint("Coincident", 0, 2, 1, 1),
    Sketcher.Constraint("Coincident", 1, 2, 2, 1),
    Sketcher.Constraint("Coincident", 2, 2, 3, 1),
    Sketcher.Constraint("Coincident", 3, 2, 0, 1),
    Sketcher.Constraint("Vertical", 0),
    Sketcher.Constraint("Horizontal", 1),
    Sketcher.Constraint("Vertical", 2),
    Sketcher.Constraint("Horizontal", 3),
    Sketcher.Constraint("Equal", 3, 0),
    Sketcher.Constraint("DistanceX", 1, 1, 1, 2, 20.0),
    Sketcher.Constraint("DistanceX", 0, 2, -1, 1, 30.0),
    Sketcher.Constraint("DistanceY", -1, 1, 0, 2, 61.25),
])
pocket12 = doc.addObject("PartDesign::Pocket", "Pocket011")
body.addObject(pocket12)
pocket12.Profile = sketch13
pocket12.Type = "ThroughAll"
pocket12.Reversed = True

# Sketch on XY plane
sketch14 = doc.addObject("Sketcher::SketchObject", "Sketch013")
body.addObject(sketch14)
sketch14.AttachmentSupport = (doc.XY_Plane, [""])
sketch14.MapMode = "FlatFace"
sketch14.AttachmentOffset = App.Placement(App.Vector(0, 0, 48.75), App.Rotation())
sketch14.addGeometry(Part.Circle(App.Vector(-50, 50, 0), App.Vector(0, 0, 1), 5), False)
sketch14.addConstraint([
    Sketcher.Constraint("Diameter", 0, 10.0),
    Sketcher.Constraint("DistanceX", 0, 3, -1, 1, 50.0),
    Sketcher.Constraint("DistanceY", -1, 1, 0, 3, 50.0),
])
pocket13 = doc.addObject("PartDesign::Pocket", "Pocket012")
body.addObject(pocket13)
pocket13.Profile = sketch14
pocket13.Type = "ThroughAll"
pocket13.Reversed = True

# Sketch on XZ plane
sketch15 = doc.addObject("Sketcher::SketchObject", "Sketch014")
body.addObject(sketch15)
sketch15.AttachmentSupport = (doc.XZ_Plane, [""])
sketch15.MapMode = "FlatFace"
sketch15.AttachmentOffset = App.Placement(App.Vector(0, 0, -100), App.Rotation())
sketch15.addGeometry([
    Part.LineSegment(App.Vector(-219, 0, 0), App.Vector(-20, 31, 0)),  # 0
    Part.LineSegment(App.Vector(-20, 31, 0), App.Vector(-20, 0, 0)),  # 1
    Part.LineSegment(App.Vector(-20, 0, 0), App.Vector(-219, 0, 0)),  # 2
    Part.LineSegment(App.Vector(-20, 71, 0), App.Vector(-219, 102, 0)),  # 3
    Part.LineSegment(App.Vector(-219, 102, 0), App.Vector(-20, 102, 0)),  # 4
    Part.LineSegment(App.Vector(-20, 102, 0), App.Vector(-20, 71, 0)),  # 5
], False)
sketch15.addConstraint([
    Sketcher.Constraint("Coincident", 0, 2, 1, 1),
    Sketcher.Constraint("Coincident", 1, 2, 2, 1),
    Sketcher.Constraint("Coincident", 2, 2, 0, 1),
    Sketcher.Constraint("Coincident", 3, 2, 4, 1),
    Sketcher.Constraint("Coincident", 4, 2, 5, 1),
    Sketcher.Constraint("Coincident", 5, 2, 3, 1),
    Sketcher.Constraint("Vertical", 1),
    Sketcher.Constraint("Horizontal", 2),
    Sketcher.Constraint("Horizontal", 4),
    Sketcher.Constraint("Vertical", 5),
    Sketcher.Constraint("PointOnObject", 1, 2, -1),
    Sketcher.Constraint("Vertical", 2, 2, 3, 2),
    Sketcher.Constraint("Vertical", 1, 2, 4, 2),
    Sketcher.Constraint("Equal", 1, 5),
    Sketcher.Constraint("DistanceX", 2, 2, 2, 1, 199.0),
    Sketcher.Constraint("DistanceX", 0, 2, -1, 1, 20.0),
    Sketcher.Constraint("DistanceY", 0, 2, 5, 2, 40.0),
    Sketcher.Constraint("DistanceY", 1, 2, 1, 1, 31.25),
])
pocket14 = doc.addObject("PartDesign::Pocket", "Pocket013")
body.addObject(pocket14)
pocket14.Profile = sketch15
pocket14.Type = "ThroughAll"
pocket14.Reversed = True
doc.recompute()

fillet = doc.addObject("PartDesign::Fillet", "Fillet")
body.addObject(fillet)
fillet.Base = (pocket14, edges_at(pocket14, [
    (-107, 6, 33.169),
    (-73.436, 46, 66.696),
    (-56.848, 145.5, 51.25),
    (-95.027, 100, 51.25),
    (-73.436, 46, 35.804),
    (-107, 6, 69.331),
]))
fillet.Radius = 10
doc.recompute()

fillet2 = doc.addObject("PartDesign::Fillet", "Fillet001")
body.addObject(fillet2)
fillet2.Base = (fillet, edges_at(fillet, [(-104.202, 0, 51.25), (-70.638, 40, 51.25)]))
fillet2.Radius = 10

doc.recompute()
